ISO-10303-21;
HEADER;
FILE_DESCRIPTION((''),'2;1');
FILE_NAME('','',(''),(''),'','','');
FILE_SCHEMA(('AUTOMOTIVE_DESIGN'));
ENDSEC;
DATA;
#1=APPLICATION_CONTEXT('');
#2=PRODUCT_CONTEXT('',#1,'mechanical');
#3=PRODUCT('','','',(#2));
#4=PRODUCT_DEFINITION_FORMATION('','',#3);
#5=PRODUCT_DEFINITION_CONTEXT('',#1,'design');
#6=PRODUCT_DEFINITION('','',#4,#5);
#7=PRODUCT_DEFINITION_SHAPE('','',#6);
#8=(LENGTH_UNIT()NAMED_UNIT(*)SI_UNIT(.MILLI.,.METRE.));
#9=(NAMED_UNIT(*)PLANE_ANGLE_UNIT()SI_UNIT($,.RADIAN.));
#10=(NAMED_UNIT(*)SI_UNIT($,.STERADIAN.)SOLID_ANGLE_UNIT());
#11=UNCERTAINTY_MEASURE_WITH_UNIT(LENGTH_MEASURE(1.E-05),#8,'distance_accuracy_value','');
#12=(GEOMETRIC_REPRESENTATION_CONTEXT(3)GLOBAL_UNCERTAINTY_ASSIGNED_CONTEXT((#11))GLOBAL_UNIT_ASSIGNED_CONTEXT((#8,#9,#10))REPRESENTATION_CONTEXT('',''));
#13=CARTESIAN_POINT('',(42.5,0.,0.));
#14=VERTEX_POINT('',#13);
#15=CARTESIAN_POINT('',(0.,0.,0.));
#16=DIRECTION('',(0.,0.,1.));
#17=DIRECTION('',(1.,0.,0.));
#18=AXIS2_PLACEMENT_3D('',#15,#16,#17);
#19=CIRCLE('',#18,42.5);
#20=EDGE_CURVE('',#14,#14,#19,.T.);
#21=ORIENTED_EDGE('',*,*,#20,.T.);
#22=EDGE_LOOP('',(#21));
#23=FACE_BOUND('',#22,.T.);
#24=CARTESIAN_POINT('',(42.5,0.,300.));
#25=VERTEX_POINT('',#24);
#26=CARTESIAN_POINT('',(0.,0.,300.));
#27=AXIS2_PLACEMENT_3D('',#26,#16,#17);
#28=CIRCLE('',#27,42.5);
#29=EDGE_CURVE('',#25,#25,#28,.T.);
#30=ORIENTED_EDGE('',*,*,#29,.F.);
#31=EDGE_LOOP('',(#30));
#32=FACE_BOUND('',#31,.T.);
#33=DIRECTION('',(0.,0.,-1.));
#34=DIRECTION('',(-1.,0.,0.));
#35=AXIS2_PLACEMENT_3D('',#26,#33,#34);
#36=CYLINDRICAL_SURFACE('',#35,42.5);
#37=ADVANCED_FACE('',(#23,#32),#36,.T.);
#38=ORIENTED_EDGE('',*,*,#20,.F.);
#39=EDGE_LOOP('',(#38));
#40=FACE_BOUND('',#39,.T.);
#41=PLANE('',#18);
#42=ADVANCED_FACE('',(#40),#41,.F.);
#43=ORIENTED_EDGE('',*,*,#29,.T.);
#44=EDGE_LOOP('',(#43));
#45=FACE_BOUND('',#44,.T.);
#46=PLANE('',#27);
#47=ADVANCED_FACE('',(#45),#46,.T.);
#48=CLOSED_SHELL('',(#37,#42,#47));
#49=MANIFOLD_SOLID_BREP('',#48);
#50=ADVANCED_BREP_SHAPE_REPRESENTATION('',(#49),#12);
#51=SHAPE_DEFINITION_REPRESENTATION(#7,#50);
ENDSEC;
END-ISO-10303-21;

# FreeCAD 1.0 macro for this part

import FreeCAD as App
import Part
import Sketcher
Q = App.Units.Quantity

doc = App.newDocument("Part")
params = doc.addObject("Spreadsheet::Sheet", "Params")
for row, (alias, value) in enumerate([
    ("sketch1_diameter", "85 mm"),
    ("pad1_length", "300 mm"),
], start=1):
    params.set(f"A{row}", alias)
    params.set(f"B{row}", "=" + value)
    params.setAlias(f"B{row}", alias)

body = doc.addObject("PartDesign::Body", "Body")

# Sketch on XY plane
sketch1 = doc.addObject("Sketcher::SketchObject", "Sketch")
body.addObject(sketch1)
sketch1.AttachmentSupport = (doc.XY_Plane, [""])
sketch1.MapMode = "FlatFace"
sketch1.addGeometry(Part.Circle(App.Vector(0, 0, 0), App.Vector(0, 0, 1), 42), False)
sketch1.addConstraint([
    Sketcher.Constraint("Coincident", 0, 3, -1, 1),
    Sketcher.Constraint("Diameter", 0, Q("85 mm")),
])
sketch1.setExpression("Constraints[1]", "Params.sketch1_diameter")
pad1 = doc.addObject("PartDesign::Pad", "Pad")
body.addObject(pad1)
pad1.Profile = sketch1
pad1.setExpression("Length", "Params.pad1_length")

doc.recompute()
